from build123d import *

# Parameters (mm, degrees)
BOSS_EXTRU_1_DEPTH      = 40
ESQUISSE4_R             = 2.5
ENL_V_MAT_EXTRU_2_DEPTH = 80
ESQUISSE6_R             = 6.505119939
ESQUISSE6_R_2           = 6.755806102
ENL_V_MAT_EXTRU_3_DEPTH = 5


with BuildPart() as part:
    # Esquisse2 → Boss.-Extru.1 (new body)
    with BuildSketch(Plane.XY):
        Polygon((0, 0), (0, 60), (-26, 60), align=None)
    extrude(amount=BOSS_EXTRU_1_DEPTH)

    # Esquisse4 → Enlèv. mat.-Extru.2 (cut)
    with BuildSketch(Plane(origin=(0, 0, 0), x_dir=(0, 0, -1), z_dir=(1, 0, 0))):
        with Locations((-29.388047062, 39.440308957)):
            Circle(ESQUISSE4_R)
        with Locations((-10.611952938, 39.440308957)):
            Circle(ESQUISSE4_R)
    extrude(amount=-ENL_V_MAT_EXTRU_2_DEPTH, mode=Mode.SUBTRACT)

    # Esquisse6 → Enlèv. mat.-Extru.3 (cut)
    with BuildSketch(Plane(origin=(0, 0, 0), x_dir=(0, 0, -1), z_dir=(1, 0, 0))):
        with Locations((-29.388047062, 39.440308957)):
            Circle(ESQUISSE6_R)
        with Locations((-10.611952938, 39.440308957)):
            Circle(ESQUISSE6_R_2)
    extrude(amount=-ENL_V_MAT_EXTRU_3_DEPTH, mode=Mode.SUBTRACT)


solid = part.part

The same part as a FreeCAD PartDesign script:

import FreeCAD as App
import Part
import Sketcher

V = App.Vector

doc = App.newDocument("Part")
params = doc.addObject("Spreadsheet::Sheet", "Params")
for row, (alias, value) in enumerate([
    ("sketch1_width", "26 mm"),
    ("sketch1_height", "60 mm"),
    ("pad1_length", "40 mm"),
    ("sketch2_diameter", "5 mm"),
    ("pocket1_length", "80 mm"),
    ("pocket2_length", "5 mm"),
], start=1):
    params.set(f"A{row}", alias)
    params.set(f"B{row}", "=" + value)
    params.setAlias(f"B{row}", alias)

body = doc.addObject("PartDesign::Body", "Body")

sketch1 = body.newObject("Sketcher::SketchObject", "Sketch")
sketch1.AttachmentSupport = (doc.getObject("XY_Plane"), [""])
sketch1.MapMode = "FlatFace"
sketch1.addGeometry(Part.LineSegment(V(0, 0, 0), V(0, 60, 0)), False)
sketch1.addGeometry(Part.LineSegment(V(0, 60, 0), V(-26, 60, 0)), False)
sketch1.addGeometry(Part.LineSegment(V(-26, 60, 0), V(0, 0, 0)), False)
sketch1.addConstraint(Sketcher.Constraint("Coincident", 0, 2, 1, 1))
sketch1.addConstraint(Sketcher.Constraint("Coincident", 1, 2, 2, 1))
sketch1.addConstraint(Sketcher.Constraint("Coincident", 2, 2, 0, 1))
sketch1.addConstraint(Sketcher.Constraint("Vertical", 0))
sketch1.addConstraint(Sketcher.Constraint("Horizontal", 1))
sketch1.addConstraint(Sketcher.Constraint("Coincident", 2, 2, -1, 1))
sketch1.addConstraint(Sketcher.Constraint("DistanceX", 1, 2, 1, 1, 26.0))
sketch1.addConstraint(Sketcher.Constraint("DistanceY", 0, 1, 0, 2, 60.0))
sketch1.setExpression("Constraints[6]", "Params.sketch1_width")
sketch1.setExpression("Constraints[7]", "Params.sketch1_height")
pad1 = body.newObject("PartDesign::Pad", "Pad")
pad1.Profile = sketch1
pad1.setExpression("Length", "Params.pad1_length")

sketch2 = body.newObject("Sketcher::SketchObject", "Sketch001")
sketch2.AttachmentSupport = (doc.getObject("YZ_Plane"), [""])
sketch2.MapMode = "FlatFace"
sketch2.addGeometry(Part.Circle(V(39.4, 29.4, 0), V(0, 0, 1), 2.5), False)
sketch2.addGeometry(Part.Circle(V(39.4, 10.6, 0), V(0, 0, 1), 2.5), False)
sketch2.addConstraint(Sketcher.Constraint("Equal", 0, 1))
sketch2.addConstraint(Sketcher.Constraint("Vertical", 0, 3, 1, 3))
sketch2.addConstraint(Sketcher.Constraint("Diameter", 0, 5.0))
sketch2.addConstraint(Sketcher.Constraint("DistanceX", -1, 1, 0, 3, 39.440309))
sketch2.addConstraint(Sketcher.Constraint("DistanceY", -1, 1, 0, 3, 29.388047))
sketch2.addConstraint(Sketcher.Constraint("DistanceY", -1, 1, 1, 3, 10.611953))
sketch2.setExpression("Constraints[2]", "Params.sketch2_diameter")
pocket1 = body.newObject("PartDesign::Pocket", "Pocket")
pocket1.Profile = sketch2
pocket1.setExpression("Length", "Params.pocket1_length")

sketch3 = body.newObject("Sketcher::SketchObject", "Sketch002")
sketch3.AttachmentSupport = (doc.getObject("YZ_Plane"), [""])
sketch3.MapMode = "FlatFace"
sketch3.addGeometry(Part.Circle(V(39, 29, 0), V(0, 0, 1), 7), False)
sketch3.addGeometry(Part.Circle(V(39, 11, 0), V(0, 0, 1), 7), False)
sketch3.addConstraint(Sketcher.Constraint("Vertical", 0, 3, 1, 3))
sketch3.addConstraint(Sketcher.Constraint("Diameter", 0, 13.01024))
sketch3.addConstraint(Sketcher.Constraint("Diameter", 1, 13.511612))
sketch3.addConstraint(Sketcher.Constraint("DistanceX", -1, 1, 0, 3, 39.440309))
sketch3.addConstraint(Sketcher.Constraint("DistanceY", -1, 1, 0, 3, 29.388047))
sketch3.addConstraint(Sketcher.Constraint("DistanceY", -1, 1, 1, 3, 10.611953))
pocket2 = body.newObject("PartDesign::Pocket", "Pocket001")
pocket2.Profile = sketch3
pocket2.setExpression("Length", "Params.pocket2_length")

doc.recompute()
